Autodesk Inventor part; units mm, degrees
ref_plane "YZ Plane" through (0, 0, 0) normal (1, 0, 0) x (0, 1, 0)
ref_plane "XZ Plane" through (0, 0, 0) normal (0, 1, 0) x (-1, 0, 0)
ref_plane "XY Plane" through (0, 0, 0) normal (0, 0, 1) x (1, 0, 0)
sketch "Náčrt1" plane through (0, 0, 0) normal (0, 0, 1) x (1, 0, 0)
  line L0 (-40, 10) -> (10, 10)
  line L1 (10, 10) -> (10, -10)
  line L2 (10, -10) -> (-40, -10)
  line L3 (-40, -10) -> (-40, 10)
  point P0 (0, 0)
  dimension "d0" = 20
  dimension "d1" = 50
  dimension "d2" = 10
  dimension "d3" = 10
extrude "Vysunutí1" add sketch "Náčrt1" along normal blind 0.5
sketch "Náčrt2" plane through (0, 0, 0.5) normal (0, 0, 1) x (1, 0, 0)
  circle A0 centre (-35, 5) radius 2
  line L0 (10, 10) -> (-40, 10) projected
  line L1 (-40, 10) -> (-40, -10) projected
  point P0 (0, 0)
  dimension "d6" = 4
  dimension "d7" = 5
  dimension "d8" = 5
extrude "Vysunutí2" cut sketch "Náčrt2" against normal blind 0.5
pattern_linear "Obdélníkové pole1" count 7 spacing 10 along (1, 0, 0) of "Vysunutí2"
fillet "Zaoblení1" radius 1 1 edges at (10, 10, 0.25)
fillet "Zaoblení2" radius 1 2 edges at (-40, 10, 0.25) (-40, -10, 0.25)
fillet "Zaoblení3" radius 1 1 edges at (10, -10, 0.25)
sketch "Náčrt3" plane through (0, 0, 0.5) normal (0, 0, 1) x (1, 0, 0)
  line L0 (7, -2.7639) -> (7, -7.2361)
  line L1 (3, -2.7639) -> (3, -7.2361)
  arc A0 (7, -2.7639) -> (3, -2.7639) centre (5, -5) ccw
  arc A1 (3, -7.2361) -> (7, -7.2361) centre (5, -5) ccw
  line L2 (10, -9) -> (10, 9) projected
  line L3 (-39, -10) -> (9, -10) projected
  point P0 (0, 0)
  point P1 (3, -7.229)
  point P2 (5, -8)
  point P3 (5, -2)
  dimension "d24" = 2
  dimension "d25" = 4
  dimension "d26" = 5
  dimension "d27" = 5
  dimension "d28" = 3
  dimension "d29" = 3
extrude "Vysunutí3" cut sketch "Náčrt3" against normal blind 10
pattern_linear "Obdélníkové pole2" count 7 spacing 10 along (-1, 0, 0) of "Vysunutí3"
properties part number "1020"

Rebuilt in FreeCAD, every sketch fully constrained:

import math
import FreeCAD as App
import Part
import Sketcher
from FreeCAD import Vector
Q = App.Units.Quantity


def edges_at(feature, points):
    """Names of the edges that pass closest to the given points."""
    edges = feature.Shape.Edges
    near = lambda p: min(range(len(edges)), key=lambda i: edges[i].distToShape(Part.Vertex(*p))[0])
    return sorted({f"Edge{near(p) + 1}" for p in points})


def add_polygon(sketch, points):
    """Adds a closed chain of lines whose ends are joined by coincident constraints."""
    first, n = sketch.GeometryCount, len(points)
    for a, b in zip(points, points[1:] + points[:1]):
        sketch.addGeometry(Part.LineSegment(App.Vector(*a, 0), App.Vector(*b, 0)), False)
    for i in range(n):
        sketch.addConstraint(Sketcher.Constraint("Coincident", first + i, 2, first + (i + 1) % n, 1))

doc = App.newDocument("Part")
body = doc.addObject("PartDesign::Body", "Body")

# Sketch on XY plane
sketch1 = body.newObject("Sketcher::SketchObject", "Sketch")
sketch1.AttachmentSupport = (doc.getObject("XY_Plane"), [""])
sketch1.MapMode = "FlatFace"
add_polygon(sketch1, [(10, 10), (-40, 10), (-40, -10), (10, -10)])  # lines 0-3
sketch1.addConstraint(Sketcher.Constraint("Horizontal", 0))
sketch1.addConstraint(Sketcher.Constraint("Vertical", 1))
sketch1.addConstraint(Sketcher.Constraint("Horizontal", 2))
sketch1.addConstraint(Sketcher.Constraint("Vertical", 3))
sketch1.addConstraint(Sketcher.Constraint("DistanceX", 0, 2, 0, 1, Q("50 mm")))
sketch1.addConstraint(Sketcher.Constraint("DistanceY", 1, 2, 1, 1, Q("20 mm")))
sketch1.addConstraint(Sketcher.Constraint("DistanceY", -1, 1, 0, 2, Q("10 mm")))
sketch1.addConstraint(Sketcher.Constraint("DistanceX", -1, 1, 2, 2, Q("10 mm")))
pad1 = body.newObject("PartDesign::Pad", "Pad")
pad1.Profile = sketch1
pad1.Length = 0.5

# Sketch on XY plane
sketch2 = body.newObject("Sketcher::SketchObject", "Sketch001")
sketch2.AttachmentSupport = (doc.getObject("XY_Plane"), [""])
sketch2.MapMode = "FlatFace"
sketch2.AttachmentOffset = App.Placement(Vector(0, 0, 0.5), App.Rotation())
sketch2.addGeometry(Part.Circle(Vector(-35, 5, 0), Vector(0, 0, 1), 2), False)
sketch2.addConstraint(Sketcher.Constraint("Diameter", 0, Q("4 mm")))
sketch2.addConstraint(Sketcher.Constraint("DistanceY", -1, 1, 0, 3, Q("5 mm")))
sketch2.addConstraint(Sketcher.Constraint("DistanceX", 0, 3, -1, 1, Q("35 mm")))
pocket1 = body.newObject("PartDesign::Pocket", "Pocket")
pocket1.Profile = sketch2
pocket1.Length = 0.5
doc.recompute()

linearpattern = body.newObject("PartDesign::LinearPattern", "LinearPattern")
linearpattern.Originals = [pocket1]
linearpattern.Direction = (doc.getObject("X_Axis"), [""])
linearpattern.Mode = "offset"
linearpattern.Offset = 10
linearpattern.Occurrences = 7
body.Tip = linearpattern
doc.recompute()

fillet = body.newObject("PartDesign::Fillet", "Fillet")
fillet.Base = (linearpattern, edges_at(linearpattern, [(10, 10, 0.25)]))
fillet.Radius = 1
doc.recompute()

fillet2 = body.newObject("PartDesign::Fillet", "Fillet001")
fillet2.Base = (fillet, edges_at(fillet, [(-40, 10, 0.25), (-40, -10, 0.25)]))
fillet2.Radius = 1
doc.recompute()

fillet3 = body.newObject("PartDesign::Fillet", "Fillet002")
fillet3.Base = (fillet2, edges_at(fillet2, [(10, -10, 0.25)]))
fillet3.Radius = 1

# Sketch on XY plane
sketch3 = body.newObject("Sketcher::SketchObject", "Sketch002")
sketch3.AttachmentSupport = (doc.getObject("XY_Plane"), [""])
sketch3.MapMode = "FlatFace"
sketch3.AttachmentOffset = App.Placement(Vector(0, 0, 0.5), App.Rotation())
sketch3.addGeometry(Part.LineSegment(Vector(7, -7.2, 0), Vector(7, -2.8, 0)), False)
sketch3.addGeometry(Part.ArcOfCircle(Part.Circle(Vector(5, -5, 0), Vector(0, 0, 1), 3), math.radians(48), math.radians(132)), False)
sketch3.addGeometry(Part.LineSegment(Vector(3, -2.8, 0), Vector(3, -7.2, 0)), False)
sketch3.addGeometry(Part.ArcOfCircle(Part.Circle(Vector(5, -5, 0), Vector(0, 0, 1), 3), math.radians(-132), math.radians(-48)), False)
sketch3.addConstraint(Sketcher.Constraint("Coincident", 0, 2, 1, 1))
sketch3.addConstraint(Sketcher.Constraint("Coincident", 1, 2, 2, 1))
sketch3.addConstraint(Sketcher.Constraint("Coincident", 2, 2, 3, 1))
sketch3.addConstraint(Sketcher.Constraint("Coincident", 3, 2, 0, 1))
sketch3.addConstraint(Sketcher.Constraint("Vertical", 0))
sketch3.addConstraint(Sketcher.Constraint("Vertical", 2))
sketch3.addConstraint(Sketcher.Constraint("Coincident", 3, 3, 1, 3))
sketch3.addConstraint(Sketcher.Constraint("Equal", 1, 3))
sketch3.addConstraint(Sketcher.Constraint("Horizontal", 0, 2, 1, 2))
sketch3.addConstraint(Sketcher.Constraint("Radius", 1, Q("3 mm")))
sketch3.addConstraint(Sketcher.Constraint("DistanceX", -1, 1, 1, 3, Q("5 mm")))
sketch3.addConstraint(Sketcher.Constraint("DistanceY", 1, 3, -1, 1, Q("5 mm")))
sketch3.addConstraint(Sketcher.Constraint("DistanceX", -1, 1, 1, 2, Q("3 mm")))
pocket2 = body.newObject("PartDesign::Pocket", "Pocket001")
pocket2.Profile = sketch3
pocket2.Length = 10
doc.recompute()

linearpattern2 = body.newObject("PartDesign::LinearPattern", "LinearPattern001")
linearpattern2.Originals = [pocket2]
linearpattern2.Direction = (doc.getObject("X_Axis"), [""])
linearpattern2.Mode = "offset"
linearpattern2.Offset = 10
linearpattern2.Occurrences = 7
linearpattern2.Reversed = True
body.Tip = linearpattern2

doc.recompute()
